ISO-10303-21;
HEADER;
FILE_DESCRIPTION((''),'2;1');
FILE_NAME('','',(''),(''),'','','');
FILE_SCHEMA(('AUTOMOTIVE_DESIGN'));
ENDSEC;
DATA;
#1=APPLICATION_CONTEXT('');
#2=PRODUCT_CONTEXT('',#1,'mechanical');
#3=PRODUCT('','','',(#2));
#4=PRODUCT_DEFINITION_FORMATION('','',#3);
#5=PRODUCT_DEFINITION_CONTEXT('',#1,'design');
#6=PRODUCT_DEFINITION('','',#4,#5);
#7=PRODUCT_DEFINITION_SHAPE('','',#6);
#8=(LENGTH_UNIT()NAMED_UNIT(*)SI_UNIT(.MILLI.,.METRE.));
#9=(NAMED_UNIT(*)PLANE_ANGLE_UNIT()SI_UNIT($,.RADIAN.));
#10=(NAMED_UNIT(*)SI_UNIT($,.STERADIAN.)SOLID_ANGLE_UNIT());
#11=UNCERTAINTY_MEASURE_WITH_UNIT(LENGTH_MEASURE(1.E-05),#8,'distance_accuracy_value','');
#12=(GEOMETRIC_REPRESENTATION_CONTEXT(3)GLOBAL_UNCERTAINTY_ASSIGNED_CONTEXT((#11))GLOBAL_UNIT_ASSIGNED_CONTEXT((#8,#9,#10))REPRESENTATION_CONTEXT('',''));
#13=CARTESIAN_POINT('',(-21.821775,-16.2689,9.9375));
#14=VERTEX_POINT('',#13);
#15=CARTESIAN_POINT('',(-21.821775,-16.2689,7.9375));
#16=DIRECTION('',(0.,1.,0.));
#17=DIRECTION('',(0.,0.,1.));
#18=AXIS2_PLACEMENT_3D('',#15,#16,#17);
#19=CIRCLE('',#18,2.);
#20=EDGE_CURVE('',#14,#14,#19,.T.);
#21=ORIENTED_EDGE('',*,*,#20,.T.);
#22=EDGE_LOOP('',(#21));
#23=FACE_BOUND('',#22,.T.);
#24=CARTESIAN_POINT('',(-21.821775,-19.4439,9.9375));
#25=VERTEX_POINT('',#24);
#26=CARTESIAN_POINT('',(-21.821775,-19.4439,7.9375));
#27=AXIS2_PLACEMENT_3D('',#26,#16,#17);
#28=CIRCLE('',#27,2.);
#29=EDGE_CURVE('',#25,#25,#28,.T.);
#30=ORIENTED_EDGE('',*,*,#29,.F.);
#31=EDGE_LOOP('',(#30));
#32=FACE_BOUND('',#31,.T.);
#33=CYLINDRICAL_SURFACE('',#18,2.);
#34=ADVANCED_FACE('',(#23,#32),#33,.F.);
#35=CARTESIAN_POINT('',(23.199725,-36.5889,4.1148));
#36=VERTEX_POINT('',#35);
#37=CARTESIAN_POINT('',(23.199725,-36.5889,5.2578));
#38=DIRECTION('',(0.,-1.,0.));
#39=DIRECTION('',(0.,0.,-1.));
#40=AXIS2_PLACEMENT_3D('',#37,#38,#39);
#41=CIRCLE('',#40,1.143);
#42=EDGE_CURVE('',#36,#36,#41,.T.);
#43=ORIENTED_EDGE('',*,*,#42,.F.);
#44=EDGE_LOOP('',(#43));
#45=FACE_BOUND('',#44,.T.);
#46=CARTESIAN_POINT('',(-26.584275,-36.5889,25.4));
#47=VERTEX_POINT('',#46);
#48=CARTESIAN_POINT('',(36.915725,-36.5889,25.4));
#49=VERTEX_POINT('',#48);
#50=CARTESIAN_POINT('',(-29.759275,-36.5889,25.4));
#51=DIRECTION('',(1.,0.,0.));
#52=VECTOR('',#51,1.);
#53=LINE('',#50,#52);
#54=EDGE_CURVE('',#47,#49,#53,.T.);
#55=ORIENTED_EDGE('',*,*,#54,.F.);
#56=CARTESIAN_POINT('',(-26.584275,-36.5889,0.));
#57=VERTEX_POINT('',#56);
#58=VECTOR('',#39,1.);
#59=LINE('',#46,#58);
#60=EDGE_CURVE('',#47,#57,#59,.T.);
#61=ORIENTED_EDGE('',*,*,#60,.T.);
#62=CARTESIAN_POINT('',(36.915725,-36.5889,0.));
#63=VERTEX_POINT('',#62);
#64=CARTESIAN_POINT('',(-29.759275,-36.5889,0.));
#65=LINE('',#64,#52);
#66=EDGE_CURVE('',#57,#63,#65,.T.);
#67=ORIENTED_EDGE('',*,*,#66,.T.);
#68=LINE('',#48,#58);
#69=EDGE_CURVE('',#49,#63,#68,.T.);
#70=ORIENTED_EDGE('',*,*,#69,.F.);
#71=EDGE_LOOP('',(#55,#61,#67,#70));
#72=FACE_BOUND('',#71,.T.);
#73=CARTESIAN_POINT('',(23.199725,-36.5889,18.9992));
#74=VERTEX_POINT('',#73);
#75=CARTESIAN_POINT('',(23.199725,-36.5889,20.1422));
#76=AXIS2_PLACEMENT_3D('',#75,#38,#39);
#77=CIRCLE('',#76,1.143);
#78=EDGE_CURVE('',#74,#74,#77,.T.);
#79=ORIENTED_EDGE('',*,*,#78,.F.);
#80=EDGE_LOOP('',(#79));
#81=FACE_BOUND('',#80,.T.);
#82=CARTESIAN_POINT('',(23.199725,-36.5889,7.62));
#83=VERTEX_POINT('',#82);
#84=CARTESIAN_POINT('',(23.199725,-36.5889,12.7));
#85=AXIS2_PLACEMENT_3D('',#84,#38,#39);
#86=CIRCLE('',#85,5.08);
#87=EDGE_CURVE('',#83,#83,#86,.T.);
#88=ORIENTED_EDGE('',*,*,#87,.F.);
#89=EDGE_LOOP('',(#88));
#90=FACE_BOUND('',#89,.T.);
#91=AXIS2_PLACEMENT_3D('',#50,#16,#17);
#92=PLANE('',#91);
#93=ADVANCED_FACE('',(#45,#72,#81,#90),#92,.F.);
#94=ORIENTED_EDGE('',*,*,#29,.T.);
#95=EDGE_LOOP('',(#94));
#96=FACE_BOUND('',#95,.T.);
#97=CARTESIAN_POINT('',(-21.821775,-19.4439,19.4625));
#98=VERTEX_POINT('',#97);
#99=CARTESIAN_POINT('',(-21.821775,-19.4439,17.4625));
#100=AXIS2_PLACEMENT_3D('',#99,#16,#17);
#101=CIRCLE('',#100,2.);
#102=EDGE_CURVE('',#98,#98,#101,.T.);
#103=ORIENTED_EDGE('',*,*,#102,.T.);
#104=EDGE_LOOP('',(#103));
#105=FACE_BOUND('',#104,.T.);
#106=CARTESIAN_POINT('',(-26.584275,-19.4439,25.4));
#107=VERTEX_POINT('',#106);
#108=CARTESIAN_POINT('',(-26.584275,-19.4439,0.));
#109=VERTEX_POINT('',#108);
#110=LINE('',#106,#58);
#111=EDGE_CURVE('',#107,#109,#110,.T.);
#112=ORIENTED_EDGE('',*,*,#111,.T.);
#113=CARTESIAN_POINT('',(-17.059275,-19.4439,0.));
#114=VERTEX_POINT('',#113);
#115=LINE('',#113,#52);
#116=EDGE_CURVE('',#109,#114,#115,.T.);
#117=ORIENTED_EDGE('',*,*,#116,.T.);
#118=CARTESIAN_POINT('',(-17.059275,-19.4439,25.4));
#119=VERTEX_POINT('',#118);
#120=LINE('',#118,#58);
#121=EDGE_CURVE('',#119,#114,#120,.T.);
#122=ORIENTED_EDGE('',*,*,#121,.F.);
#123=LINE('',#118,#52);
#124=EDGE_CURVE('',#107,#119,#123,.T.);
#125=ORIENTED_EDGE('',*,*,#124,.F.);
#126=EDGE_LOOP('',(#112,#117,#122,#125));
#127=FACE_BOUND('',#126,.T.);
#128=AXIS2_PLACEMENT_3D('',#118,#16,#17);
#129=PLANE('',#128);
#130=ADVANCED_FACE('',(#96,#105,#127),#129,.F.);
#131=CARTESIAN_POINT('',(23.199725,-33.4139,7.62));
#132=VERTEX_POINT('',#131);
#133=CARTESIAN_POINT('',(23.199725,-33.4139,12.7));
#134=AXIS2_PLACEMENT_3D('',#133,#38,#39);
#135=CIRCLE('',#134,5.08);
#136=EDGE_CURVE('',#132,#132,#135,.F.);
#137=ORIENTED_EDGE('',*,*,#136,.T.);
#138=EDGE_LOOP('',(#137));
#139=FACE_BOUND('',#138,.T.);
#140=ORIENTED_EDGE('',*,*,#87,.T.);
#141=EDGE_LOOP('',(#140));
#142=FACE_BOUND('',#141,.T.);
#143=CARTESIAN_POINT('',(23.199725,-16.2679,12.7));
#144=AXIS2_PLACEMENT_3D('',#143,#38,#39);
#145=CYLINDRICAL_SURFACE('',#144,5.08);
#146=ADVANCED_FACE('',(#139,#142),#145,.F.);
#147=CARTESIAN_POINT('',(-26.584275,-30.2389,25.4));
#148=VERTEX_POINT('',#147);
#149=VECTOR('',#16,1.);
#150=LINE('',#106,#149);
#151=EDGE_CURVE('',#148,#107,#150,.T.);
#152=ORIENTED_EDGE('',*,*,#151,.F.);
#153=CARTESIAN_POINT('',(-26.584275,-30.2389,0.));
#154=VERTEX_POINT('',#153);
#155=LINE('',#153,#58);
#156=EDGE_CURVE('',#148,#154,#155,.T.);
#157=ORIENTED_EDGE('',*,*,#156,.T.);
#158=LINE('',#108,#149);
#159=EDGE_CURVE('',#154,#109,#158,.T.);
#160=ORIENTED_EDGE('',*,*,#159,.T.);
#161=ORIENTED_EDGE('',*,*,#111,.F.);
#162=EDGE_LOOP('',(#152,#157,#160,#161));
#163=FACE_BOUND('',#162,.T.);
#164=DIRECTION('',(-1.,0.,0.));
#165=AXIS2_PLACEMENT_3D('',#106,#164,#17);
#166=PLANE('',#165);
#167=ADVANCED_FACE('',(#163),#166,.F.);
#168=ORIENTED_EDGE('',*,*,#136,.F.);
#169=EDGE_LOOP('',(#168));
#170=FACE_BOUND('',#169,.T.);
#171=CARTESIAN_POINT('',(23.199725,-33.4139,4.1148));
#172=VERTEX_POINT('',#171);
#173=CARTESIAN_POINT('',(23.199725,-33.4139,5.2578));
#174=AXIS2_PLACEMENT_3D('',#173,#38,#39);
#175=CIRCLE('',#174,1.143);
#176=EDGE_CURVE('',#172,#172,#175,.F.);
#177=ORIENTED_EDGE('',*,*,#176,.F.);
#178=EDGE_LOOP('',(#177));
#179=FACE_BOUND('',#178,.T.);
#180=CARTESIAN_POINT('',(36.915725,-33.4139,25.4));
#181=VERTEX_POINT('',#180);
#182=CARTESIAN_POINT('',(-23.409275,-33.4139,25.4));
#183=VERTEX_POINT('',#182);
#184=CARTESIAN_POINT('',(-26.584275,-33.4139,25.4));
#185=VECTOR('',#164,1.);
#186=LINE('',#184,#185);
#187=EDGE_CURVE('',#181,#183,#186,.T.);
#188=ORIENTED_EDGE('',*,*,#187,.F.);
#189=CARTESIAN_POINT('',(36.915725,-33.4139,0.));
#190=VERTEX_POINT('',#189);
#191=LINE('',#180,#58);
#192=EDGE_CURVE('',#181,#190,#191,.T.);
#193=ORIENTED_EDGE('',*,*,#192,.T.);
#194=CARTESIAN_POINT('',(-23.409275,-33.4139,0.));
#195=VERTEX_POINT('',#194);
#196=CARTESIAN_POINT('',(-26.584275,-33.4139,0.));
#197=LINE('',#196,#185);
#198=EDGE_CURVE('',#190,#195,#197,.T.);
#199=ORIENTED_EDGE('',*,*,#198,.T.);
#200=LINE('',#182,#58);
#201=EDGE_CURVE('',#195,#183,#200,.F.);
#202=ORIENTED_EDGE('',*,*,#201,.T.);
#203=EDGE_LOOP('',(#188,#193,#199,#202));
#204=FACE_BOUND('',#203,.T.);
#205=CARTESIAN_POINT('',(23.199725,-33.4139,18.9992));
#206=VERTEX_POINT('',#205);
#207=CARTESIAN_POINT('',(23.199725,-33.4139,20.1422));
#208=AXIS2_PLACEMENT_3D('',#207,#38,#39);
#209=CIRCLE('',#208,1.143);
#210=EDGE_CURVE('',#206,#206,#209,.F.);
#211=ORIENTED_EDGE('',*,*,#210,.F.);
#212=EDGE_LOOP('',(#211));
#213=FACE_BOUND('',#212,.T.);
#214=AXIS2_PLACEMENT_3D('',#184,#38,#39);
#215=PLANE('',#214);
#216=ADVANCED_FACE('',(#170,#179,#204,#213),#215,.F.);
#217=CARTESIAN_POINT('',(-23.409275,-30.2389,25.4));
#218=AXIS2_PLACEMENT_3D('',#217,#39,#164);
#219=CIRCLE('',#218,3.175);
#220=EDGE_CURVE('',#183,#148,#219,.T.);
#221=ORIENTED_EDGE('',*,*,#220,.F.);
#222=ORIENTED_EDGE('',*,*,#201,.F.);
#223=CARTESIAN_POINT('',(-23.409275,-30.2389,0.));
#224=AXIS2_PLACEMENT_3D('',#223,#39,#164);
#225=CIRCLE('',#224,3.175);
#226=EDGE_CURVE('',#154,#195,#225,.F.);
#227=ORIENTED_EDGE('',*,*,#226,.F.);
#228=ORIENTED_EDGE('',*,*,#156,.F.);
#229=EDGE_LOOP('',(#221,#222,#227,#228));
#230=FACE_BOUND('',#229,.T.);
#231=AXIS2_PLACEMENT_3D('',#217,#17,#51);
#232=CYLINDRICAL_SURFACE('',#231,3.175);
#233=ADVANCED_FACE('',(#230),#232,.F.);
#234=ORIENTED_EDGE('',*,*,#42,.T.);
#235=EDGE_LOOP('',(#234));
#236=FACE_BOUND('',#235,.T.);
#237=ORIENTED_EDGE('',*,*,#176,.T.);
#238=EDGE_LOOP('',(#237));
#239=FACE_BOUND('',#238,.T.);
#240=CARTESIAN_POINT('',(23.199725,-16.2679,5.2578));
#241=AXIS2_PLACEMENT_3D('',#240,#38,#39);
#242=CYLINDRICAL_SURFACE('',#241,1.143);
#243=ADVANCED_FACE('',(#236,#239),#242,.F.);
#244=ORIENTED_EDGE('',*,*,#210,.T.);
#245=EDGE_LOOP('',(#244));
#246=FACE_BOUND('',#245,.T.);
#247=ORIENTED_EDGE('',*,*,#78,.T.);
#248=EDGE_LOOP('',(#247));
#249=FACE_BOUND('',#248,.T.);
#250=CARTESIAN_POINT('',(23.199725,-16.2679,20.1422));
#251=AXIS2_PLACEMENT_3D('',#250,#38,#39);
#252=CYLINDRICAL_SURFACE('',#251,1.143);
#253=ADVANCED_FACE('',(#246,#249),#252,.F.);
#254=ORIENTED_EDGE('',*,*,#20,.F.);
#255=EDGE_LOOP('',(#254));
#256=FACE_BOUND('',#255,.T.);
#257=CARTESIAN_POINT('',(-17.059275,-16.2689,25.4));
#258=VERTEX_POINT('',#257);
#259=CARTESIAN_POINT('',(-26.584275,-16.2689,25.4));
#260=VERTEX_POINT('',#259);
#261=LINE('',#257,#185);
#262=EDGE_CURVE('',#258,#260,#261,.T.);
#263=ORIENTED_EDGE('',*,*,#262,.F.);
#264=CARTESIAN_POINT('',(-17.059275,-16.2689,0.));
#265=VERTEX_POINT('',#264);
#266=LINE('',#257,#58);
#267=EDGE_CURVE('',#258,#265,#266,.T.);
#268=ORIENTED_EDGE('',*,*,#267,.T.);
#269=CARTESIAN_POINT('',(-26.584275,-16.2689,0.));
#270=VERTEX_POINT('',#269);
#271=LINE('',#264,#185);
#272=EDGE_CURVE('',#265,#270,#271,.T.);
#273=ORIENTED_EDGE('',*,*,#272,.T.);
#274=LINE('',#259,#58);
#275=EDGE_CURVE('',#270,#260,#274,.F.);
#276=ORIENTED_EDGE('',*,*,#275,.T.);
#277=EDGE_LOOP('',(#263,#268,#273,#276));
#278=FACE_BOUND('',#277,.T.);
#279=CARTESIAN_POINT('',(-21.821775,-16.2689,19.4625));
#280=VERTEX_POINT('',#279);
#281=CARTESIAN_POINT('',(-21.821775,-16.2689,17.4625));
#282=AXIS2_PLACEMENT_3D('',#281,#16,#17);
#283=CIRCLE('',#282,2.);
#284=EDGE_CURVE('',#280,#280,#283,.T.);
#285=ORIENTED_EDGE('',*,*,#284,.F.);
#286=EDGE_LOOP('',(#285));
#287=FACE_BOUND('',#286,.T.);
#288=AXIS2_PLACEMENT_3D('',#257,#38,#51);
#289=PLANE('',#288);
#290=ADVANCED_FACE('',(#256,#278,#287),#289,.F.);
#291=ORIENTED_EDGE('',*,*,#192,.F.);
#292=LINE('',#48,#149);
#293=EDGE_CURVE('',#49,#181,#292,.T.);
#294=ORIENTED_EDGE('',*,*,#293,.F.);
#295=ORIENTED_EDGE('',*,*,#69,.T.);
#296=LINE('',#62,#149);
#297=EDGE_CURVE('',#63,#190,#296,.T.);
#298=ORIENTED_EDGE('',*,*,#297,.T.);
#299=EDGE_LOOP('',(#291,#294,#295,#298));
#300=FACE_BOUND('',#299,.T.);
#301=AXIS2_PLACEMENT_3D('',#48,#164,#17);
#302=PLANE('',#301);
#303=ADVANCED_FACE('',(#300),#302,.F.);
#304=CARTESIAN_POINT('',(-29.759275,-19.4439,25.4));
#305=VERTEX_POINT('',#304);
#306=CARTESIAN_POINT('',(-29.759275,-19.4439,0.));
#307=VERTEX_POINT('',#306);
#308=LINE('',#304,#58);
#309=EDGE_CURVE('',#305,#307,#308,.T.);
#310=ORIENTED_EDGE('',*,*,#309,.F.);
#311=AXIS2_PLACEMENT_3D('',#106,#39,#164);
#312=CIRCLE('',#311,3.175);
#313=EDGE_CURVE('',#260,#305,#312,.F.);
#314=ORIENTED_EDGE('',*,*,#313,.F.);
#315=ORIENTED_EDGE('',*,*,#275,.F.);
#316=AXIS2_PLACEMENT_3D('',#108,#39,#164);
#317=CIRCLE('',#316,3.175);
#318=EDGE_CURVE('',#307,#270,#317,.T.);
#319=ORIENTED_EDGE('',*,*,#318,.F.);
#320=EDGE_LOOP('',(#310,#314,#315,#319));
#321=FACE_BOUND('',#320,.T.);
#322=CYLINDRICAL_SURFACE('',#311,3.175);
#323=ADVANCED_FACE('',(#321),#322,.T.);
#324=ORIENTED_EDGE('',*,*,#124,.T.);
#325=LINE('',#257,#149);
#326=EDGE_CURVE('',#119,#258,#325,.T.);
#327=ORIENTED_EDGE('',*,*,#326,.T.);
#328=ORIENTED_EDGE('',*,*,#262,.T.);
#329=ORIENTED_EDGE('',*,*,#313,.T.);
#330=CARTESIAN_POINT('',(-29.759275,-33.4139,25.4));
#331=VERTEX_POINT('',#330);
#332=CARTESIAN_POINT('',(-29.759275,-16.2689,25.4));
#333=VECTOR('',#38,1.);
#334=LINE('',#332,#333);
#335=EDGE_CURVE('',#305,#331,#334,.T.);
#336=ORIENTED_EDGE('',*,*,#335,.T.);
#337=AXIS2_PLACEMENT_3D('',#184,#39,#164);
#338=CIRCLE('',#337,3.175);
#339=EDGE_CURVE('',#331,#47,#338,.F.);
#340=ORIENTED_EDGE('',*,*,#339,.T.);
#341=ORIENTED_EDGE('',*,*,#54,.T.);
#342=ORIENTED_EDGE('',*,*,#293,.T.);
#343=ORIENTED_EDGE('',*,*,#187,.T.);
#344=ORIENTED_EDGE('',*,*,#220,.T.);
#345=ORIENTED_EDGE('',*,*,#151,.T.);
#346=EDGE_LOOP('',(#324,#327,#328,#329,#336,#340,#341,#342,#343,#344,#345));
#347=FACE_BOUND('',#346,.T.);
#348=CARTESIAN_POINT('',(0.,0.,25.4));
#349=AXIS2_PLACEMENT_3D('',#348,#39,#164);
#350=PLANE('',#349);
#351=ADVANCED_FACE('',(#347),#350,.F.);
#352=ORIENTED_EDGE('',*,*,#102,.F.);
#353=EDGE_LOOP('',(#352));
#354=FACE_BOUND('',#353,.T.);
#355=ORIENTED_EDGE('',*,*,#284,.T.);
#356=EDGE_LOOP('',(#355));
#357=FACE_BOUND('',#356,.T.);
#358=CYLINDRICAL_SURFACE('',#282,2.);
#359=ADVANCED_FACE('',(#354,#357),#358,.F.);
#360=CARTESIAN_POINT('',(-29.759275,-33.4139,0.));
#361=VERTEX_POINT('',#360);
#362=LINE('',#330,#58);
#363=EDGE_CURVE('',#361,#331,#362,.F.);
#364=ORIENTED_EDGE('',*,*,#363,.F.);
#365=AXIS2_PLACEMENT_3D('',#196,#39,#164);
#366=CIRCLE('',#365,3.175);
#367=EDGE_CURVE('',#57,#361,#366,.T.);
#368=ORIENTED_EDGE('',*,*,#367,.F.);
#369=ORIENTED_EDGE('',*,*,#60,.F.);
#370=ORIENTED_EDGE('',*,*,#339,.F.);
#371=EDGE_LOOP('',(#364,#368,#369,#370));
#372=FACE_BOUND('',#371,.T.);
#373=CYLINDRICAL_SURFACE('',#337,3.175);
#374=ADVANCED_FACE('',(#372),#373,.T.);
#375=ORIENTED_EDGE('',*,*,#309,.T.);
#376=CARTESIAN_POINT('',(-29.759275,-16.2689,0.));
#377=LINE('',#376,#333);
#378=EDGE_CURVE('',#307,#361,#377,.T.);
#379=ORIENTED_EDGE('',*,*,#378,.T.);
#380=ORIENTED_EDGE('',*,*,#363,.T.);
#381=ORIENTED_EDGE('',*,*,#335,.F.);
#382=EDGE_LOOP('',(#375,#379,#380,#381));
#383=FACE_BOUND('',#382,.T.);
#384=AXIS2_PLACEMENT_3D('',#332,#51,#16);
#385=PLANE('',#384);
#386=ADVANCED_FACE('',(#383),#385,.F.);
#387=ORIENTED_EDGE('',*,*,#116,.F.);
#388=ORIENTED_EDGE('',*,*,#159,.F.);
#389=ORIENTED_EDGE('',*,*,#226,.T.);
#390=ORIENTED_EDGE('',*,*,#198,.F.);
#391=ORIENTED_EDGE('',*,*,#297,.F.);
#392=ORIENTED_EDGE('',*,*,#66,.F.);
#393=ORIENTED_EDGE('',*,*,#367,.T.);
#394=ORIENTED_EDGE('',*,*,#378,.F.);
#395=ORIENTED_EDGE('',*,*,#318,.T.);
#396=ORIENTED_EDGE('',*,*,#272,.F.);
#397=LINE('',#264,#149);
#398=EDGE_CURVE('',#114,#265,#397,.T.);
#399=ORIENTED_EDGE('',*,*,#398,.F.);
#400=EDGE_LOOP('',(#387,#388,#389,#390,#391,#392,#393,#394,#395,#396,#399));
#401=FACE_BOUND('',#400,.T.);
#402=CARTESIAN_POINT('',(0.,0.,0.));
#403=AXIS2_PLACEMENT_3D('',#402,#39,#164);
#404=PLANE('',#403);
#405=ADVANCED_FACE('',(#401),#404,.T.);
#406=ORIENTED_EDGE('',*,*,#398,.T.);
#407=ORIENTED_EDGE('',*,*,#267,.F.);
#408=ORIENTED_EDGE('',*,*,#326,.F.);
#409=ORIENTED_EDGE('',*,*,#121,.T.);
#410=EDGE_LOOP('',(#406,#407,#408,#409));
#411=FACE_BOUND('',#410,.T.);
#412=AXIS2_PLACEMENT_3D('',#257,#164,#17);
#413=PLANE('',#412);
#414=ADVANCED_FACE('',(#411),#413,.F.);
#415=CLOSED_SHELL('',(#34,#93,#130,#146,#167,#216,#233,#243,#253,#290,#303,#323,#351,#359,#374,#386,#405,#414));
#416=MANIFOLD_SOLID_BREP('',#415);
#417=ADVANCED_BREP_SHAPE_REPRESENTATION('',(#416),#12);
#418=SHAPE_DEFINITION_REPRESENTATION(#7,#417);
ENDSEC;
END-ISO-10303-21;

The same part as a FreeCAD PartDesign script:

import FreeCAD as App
import Part
import Sketcher
Q = App.Units.Quantity


def edges_at(feature, points):
    """Names of the edges that pass closest to the given points."""
    edges = feature.Shape.Edges
    near = lambda p: min(range(len(edges)), key=lambda i: edges[i].distToShape(Part.Vertex(*p))[0])
    return sorted({f"Edge{near(p) + 1}" for p in points})


def add_polygon(sketch, points):
    """Adds a closed chain of lines whose ends are joined by coincident constraints."""
    first, n = sketch.GeometryCount, len(points)
    for a, b in zip(points, points[1:] + points[:1]):
        sketch.addGeometry(Part.LineSegment(App.Vector(*a, 0), App.Vector(*b, 0)), False)
    for i in range(n):
        sketch.addConstraint(Sketcher.Constraint("Coincident", first + i, 2, first + (i + 1) % n, 1))

doc = App.newDocument("Part")
body = doc.addObject("PartDesign::Body", "Body")

sketch1 = body.newObject("Sketcher::SketchObject", "Sketch")
sketch1.AttachmentSupport = (doc.getObject("XY_Plane"), [""])
sketch1.MapMode = "FlatFace"
add_polygon(sketch1, [(-17.1, -16.3), (-29.8, -16.3), (-29.8, -36.6), (36.9, -36.6), (36.9, -33.4), (-26.6, -33.4), (-26.6, -19.4), (-17.1, -19.4)])
sketch1.addConstraint([
    Sketcher.Constraint("Horizontal", 0),
    Sketcher.Constraint("Vertical", 1),
    Sketcher.Constraint("Horizontal", 2),
    Sketcher.Constraint("Vertical", 3),
    Sketcher.Constraint("Horizontal", 4),
    Sketcher.Constraint("Vertical", 5),
    Sketcher.Constraint("Horizontal", 6),
    Sketcher.Constraint("Vertical", 7),
    Sketcher.Constraint("Equal", 3, 7),
    Sketcher.Constraint("DistanceX", 0, 2, 0, 1, Q("0.5 in")),
    Sketcher.Constraint("DistanceX", 4, 2, 4, 1, Q("2.5 in")),
    Sketcher.Constraint("DistanceY", 1, 2, 1, 1, Q("0.8 in")),
    Sketcher.Constraint("DistanceY", 5, 1, 5, 2, Q("0.55 in")),
    Sketcher.Constraint("DistanceX", 2, 1, 2, 2, Q("2.625 in")),
    Sketcher.Constraint("DistanceY", 0, 2, -1, 1, 16.2689),
    Sketcher.Constraint("DistanceX", 0, 2, -1, 1, 29.759275),
])
pad1 = body.newObject("PartDesign::Pad", "Pad")
pad1.Profile = sketch1
pad1.Length = Q("1 in")

sketch2 = body.newObject("Sketcher::SketchObject", "Sketch001")
sketch2.AttachmentSupport = (doc.getObject("XZ_Plane"), [""])
sketch2.MapMode = "FlatFace"
sketch2.AttachmentOffset = App.Placement(App.Vector(0, 0, 16.2689), App.Rotation())
sketch2.addGeometry([
    Part.Circle(App.Vector(-21.8, 7.9, 0), App.Vector(0, 0, 1), 2),
    Part.Circle(App.Vector(-21.8, 17.5, 0), App.Vector(0, 0, 1), 2),
], False)
sketch2.addConstraint([
    Sketcher.Constraint("Equal", 0, 1),
    Sketcher.Constraint("Vertical", 0, 3, 1, 3),
    Sketcher.Constraint("Diameter", 0, 4.0),
    Sketcher.Constraint("DistanceY", -1, 1, 0, 3, Q("0.3125 in")),
    Sketcher.Constraint("DistanceY", -1, 1, 1, 3, Q("0.6875 in")),
    Sketcher.Constraint("DistanceX", 0, 3, -1, 1, 21.821775),
])
doc.recompute()
hole = body.newObject("PartDesign::Hole", "Hole")
hole.Profile = sketch2
hole.ThreadType = "None"
hole.Diameter = 4
hole.DepthType = "Dimension"
hole.Depth = Q("0.125 in")
hole.DrillPoint = "Flat"
hole.Reversed = True

sketch3 = body.newObject("Sketcher::SketchObject", "Sketch002")
sketch3.AttachmentSupport = (doc.getObject("XZ_Plane"), [""])
sketch3.MapMode = "FlatFace"
sketch3.AttachmentOffset = App.Placement(App.Vector(0, 0, 36.5889), App.Rotation())
sketch3.addGeometry(Part.Circle(App.Vector(23, 13, 0), App.Vector(0, 0, 1), 5), False)
sketch3.addConstraint([
    Sketcher.Constraint("Diameter", 0, Q("0.4 in")),
    Sketcher.Constraint("DistanceY", -1, 1, 0, 3, Q("0.5 in")),
    Sketcher.Constraint("DistanceX", -1, 1, 0, 3, 23.199725),
])
pocket1 = body.newObject("PartDesign::Pocket", "Pocket")
pocket1.Profile = sketch3
pocket1.Type = "UpToFirst"

sketch4 = body.newObject("Sketcher::SketchObject", "Sketch003")
sketch4.AttachmentSupport = (doc.getObject("XZ_Plane"), [""])
sketch4.MapMode = "FlatFace"
sketch4.AttachmentOffset = App.Placement(App.Vector(0, 0, 36.5889), App.Rotation())
sketch4.addGeometry(Part.Circle(App.Vector(23.2, 5.3, 0), App.Vector(0, 0, 1), 1.1), False)
sketch4.addConstraint([
    Sketcher.Constraint("Diameter", 0, Q("0.09 in")),
    Sketcher.Constraint("DistanceY", -1, 1, 0, 3, Q("0.207 in")),
    Sketcher.Constraint("DistanceX", -1, 1, 0, 3, 23.199725),
])
pocket2 = body.newObject("PartDesign::Pocket", "Pocket001")
pocket2.Profile = sketch4
pocket2.Type = "UpToFirst"

sketch5 = body.newObject("Sketcher::SketchObject", "Sketch004")
sketch5.AttachmentSupport = (doc.getObject("XZ_Plane"), [""])
sketch5.MapMode = "FlatFace"
sketch5.AttachmentOffset = App.Placement(App.Vector(0, 0, 36.5889), App.Rotation())
sketch5.addGeometry(Part.Circle(App.Vector(23.2, 20.1, 0), App.Vector(0, 0, 1), 1.1), False)
sketch5.addConstraint([
    Sketcher.Constraint("Diameter", 0, Q("0.09 in")),
    Sketcher.Constraint("DistanceY", -1, 1, 0, 3, Q("0.793 in")),
    Sketcher.Constraint("DistanceX", -1, 1, 0, 3, 23.199725),
])
pocket3 = body.newObject("PartDesign::Pocket", "Pocket002")
pocket3.Profile = sketch5
pocket3.Type = "UpToFirst"
doc.recompute()

fillet = body.newObject("PartDesign::Fillet", "Fillet")
fillet.Base = (pocket3, edges_at(pocket3, [(-26.584, -33.414, 12.7), (-29.759, -36.589, 12.7), (-29.759, -16.269, 12.7)]))
fillet.Radius = Q("0.125 in")

doc.recompute()
